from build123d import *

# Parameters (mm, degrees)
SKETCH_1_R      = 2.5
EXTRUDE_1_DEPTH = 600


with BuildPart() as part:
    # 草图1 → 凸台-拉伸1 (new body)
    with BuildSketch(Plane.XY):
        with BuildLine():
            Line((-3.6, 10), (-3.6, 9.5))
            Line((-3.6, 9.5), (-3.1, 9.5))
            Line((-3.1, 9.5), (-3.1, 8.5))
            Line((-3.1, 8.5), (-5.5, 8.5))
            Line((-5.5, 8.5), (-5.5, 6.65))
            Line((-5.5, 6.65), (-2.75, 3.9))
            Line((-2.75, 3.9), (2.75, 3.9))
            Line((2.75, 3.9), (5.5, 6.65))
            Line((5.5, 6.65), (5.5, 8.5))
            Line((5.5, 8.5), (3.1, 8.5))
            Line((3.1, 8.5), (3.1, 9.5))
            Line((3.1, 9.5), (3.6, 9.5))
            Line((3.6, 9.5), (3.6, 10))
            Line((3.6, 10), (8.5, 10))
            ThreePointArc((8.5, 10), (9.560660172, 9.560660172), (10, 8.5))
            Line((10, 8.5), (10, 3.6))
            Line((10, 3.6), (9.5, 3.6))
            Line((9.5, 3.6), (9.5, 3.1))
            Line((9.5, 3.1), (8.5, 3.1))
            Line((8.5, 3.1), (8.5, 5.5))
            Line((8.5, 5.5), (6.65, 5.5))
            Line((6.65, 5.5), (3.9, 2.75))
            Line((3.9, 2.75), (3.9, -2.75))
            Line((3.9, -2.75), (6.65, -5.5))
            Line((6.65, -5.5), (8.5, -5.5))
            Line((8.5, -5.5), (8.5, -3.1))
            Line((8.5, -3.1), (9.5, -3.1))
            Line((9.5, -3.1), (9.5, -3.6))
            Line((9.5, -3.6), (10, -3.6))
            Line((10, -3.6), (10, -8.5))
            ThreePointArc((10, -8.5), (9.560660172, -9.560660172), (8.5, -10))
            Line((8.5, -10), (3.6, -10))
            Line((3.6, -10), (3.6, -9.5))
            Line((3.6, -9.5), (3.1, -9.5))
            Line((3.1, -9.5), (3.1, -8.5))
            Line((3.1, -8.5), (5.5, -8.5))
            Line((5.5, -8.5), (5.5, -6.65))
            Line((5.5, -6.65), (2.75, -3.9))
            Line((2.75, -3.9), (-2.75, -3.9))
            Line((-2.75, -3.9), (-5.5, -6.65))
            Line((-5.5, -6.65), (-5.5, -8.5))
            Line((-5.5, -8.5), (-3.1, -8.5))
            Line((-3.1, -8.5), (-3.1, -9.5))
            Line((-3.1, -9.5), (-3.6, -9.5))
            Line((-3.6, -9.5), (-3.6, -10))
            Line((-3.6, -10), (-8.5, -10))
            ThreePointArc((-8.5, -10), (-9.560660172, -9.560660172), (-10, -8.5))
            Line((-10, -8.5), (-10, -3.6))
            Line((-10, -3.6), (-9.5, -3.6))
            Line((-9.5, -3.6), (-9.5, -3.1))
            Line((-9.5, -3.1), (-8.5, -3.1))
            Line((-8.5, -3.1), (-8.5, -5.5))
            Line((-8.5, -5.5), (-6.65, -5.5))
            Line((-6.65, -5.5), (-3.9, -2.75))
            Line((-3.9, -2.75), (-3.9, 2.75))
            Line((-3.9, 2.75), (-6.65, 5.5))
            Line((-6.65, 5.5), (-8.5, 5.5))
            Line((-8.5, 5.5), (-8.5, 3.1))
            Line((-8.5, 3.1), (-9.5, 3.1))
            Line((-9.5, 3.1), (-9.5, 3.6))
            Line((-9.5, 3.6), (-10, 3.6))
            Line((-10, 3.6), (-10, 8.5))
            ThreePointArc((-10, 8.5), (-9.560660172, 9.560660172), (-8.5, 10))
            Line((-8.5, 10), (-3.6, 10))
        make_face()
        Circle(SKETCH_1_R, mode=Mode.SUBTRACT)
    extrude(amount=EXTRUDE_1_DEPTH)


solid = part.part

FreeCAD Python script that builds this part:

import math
import FreeCAD as App
import Part
import Sketcher

doc = App.newDocument("Part")
body = doc.addObject("PartDesign::Body", "Body")

# Sketch on XY plane
sketch1 = body.newObject("Sketcher::SketchObject", "Sketch")
sketch1.AttachmentSupport = (doc.getObject("XY_Plane"), [""])
sketch1.MapMode = "FlatFace"
sketch1.addGeometry([
    Part.LineSegment(App.Vector(-3.6, 9.5, 0), App.Vector(-3.6, 10, 0)),  # 0
    Part.LineSegment(App.Vector(-3.6, 10, 0), App.Vector(-8.5, 10, 0)),  # 1
    Part.ArcOfCircle(Part.Circle(App.Vector(-8.5, 8.5, 0), App.Vector(0, 0, 1), 1.5), math.radians(90), math.radians(180)),  # 2
    Part.LineSegment(App.Vector(-10, 8.5, 0), App.Vector(-10, 3.6, 0)),  # 3
    Part.LineSegment(App.Vector(-10, 3.6, 0), App.Vector(-9.5, 3.6, 0)),  # 4
    Part.LineSegment(App.Vector(-9.5, 3.6, 0), App.Vector(-9.5, 3.1, 0)),  # 5
    Part.LineSegment(App.Vector(-9.5, 3.1, 0), App.Vector(-8.5, 3.1, 0)),  # 6
    Part.LineSegment(App.Vector(-8.5, 3.1, 0), App.Vector(-8.5, 5.5, 0)),  # 7
    Part.LineSegment(App.Vector(-8.5, 5.5, 0), App.Vector(-6.7, 5.5, 0)),  # 8
    Part.LineSegment(App.Vector(-6.7, 5.5, 0), App.Vector(-3.9, 2.8, 0)),  # 9
    Part.LineSegment(App.Vector(-3.9, 2.8, 0), App.Vector(-3.9, -2.8, 0)),  # 10
    Part.LineSegment(App.Vector(-3.9, -2.8, 0), App.Vector(-6.7, -5.5, 0)),  # 11
    Part.LineSegment(App.Vector(-6.7, -5.5, 0), App.Vector(-8.5, -5.5, 0)),  # 12
    Part.LineSegment(App.Vector(-8.5, -5.5, 0), App.Vector(-8.5, -3.1, 0)),  # 13
    Part.LineSegment(App.Vector(-8.5, -3.1, 0), App.Vector(-9.5, -3.1, 0)),  # 14
    Part.LineSegment(App.Vector(-9.5, -3.1, 0), App.Vector(-9.5, -3.6, 0)),  # 15
    Part.LineSegment(App.Vector(-9.5, -3.6, 0), App.Vector(-10, -3.6, 0)),  # 16
    Part.LineSegment(App.Vector(-10, -3.6, 0), App.Vector(-10, -8.5, 0)),  # 17
    Part.ArcOfCircle(Part.Circle(App.Vector(-8.5, -8.5, 0), App.Vector(0, 0, 1), 1.5), math.radians(180), math.radians(270)),  # 18
    Part.LineSegment(App.Vector(-8.5, -10, 0), App.Vector(-3.6, -10, 0)),  # 19
    Part.LineSegment(App.Vector(-3.6, -10, 0), App.Vector(-3.6, -9.5, 0)),  # 20
    Part.LineSegment(App.Vector(-3.6, -9.5, 0), App.Vector(-3.1, -9.5, 0)),  # 21
    Part.LineSegment(App.Vector(-3.1, -9.5, 0), App.Vector(-3.1, -8.5, 0)),  # 22
    Part.LineSegment(App.Vector(-3.1, -8.5, 0), App.Vector(-5.5, -8.5, 0)),  # 23
    Part.LineSegment(App.Vector(-5.5, -8.5, 0), App.Vector(-5.5, -6.7, 0)),  # 24
    Part.LineSegment(App.Vector(-5.5, -6.7, 0), App.Vector(-2.8, -3.9, 0)),  # 25
    Part.LineSegment(App.Vector(-2.8, -3.9, 0), App.Vector(2.8, -3.9, 0)),  # 26
    Part.LineSegment(App.Vector(2.8, -3.9, 0), App.Vector(5.5, -6.7, 0)),  # 27
    Part.LineSegment(App.Vector(5.5, -6.7, 0), App.Vector(5.5, -8.5, 0)),  # 28
    Part.LineSegment(App.Vector(5.5, -8.5, 0), App.Vector(3.1, -8.5, 0)),  # 29
    Part.LineSegment(App.Vector(3.1, -8.5, 0), App.Vector(3.1, -9.5, 0)),  # 30
    Part.LineSegment(App.Vector(3.1, -9.5, 0), App.Vector(3.6, -9.5, 0)),  # 31
    Part.LineSegment(App.Vector(3.6, -9.5, 0), App.Vector(3.6, -10, 0)),  # 32
    Part.LineSegment(App.Vector(3.6, -10, 0), App.Vector(8.5, -10, 0)),  # 33
    Part.ArcOfCircle(Part.Circle(App.Vector(8.5, -8.5, 0), App.Vector(0, 0, 1), 1.5), math.radians(-90), math.radians(0)),  # 34
    Part.LineSegment(App.Vector(10, -8.5, 0), App.Vector(10, -3.6, 0)),  # 35
    Part.LineSegment(App.Vector(10, -3.6, 0), App.Vector(9.5, -3.6, 0)),  # 36
    Part.LineSegment(App.Vector(9.5, -3.6, 0), App.Vector(9.5, -3.1, 0)),  # 37
    Part.LineSegment(App.Vector(9.5, -3.1, 0), App.Vector(8.5, -3.1, 0)),  # 38
    Part.LineSegment(App.Vector(8.5, -3.1, 0), App.Vector(8.5, -5.5, 0)),  # 39
    Part.LineSegment(App.Vector(8.5, -5.5, 0), App.Vector(6.7, -5.5, 0)),  # 40
    Part.LineSegment(App.Vector(6.7, -5.5, 0), App.Vector(3.9, -2.8, 0)),  # 41
    Part.LineSegment(App.Vector(3.9, -2.8, 0), App.Vector(3.9, 2.8, 0)),  # 42
    Part.LineSegment(App.Vector(3.9, 2.8, 0), App.Vector(6.7, 5.5, 0)),  # 43
    Part.LineSegment(App.Vector(6.7, 5.5, 0), App.Vector(8.5, 5.5, 0)),  # 44
    Part.LineSegment(App.Vector(8.5, 5.5, 0), App.Vector(8.5, 3.1, 0)),  # 45
    Part.LineSegment(App.Vector(8.5, 3.1, 0), App.Vector(9.5, 3.1, 0)),  # 46
    Part.LineSegment(App.Vector(9.5, 3.1, 0), App.Vector(9.5, 3.6, 0)),  # 47
    Part.LineSegment(App.Vector(9.5, 3.6, 0), App.Vector(10, 3.6, 0)),  # 48
    Part.LineSegment(App.Vector(10, 3.6, 0), App.Vector(10, 8.5, 0)),  # 49
    Part.ArcOfCircle(Part.Circle(App.Vector(8.5, 8.5, 0), App.Vector(0, 0, 1), 1.5), math.radians(0), math.radians(90)),  # 50
    Part.LineSegment(App.Vector(8.5, 10, 0), App.Vector(3.6, 10, 0)),  # 51
    Part.LineSegment(App.Vector(3.6, 10, 0), App.Vector(3.6, 9.5, 0)),  # 52
    Part.LineSegment(App.Vector(3.6, 9.5, 0), App.Vector(3.1, 9.5, 0)),  # 53
    Part.LineSegment(App.Vector(3.1, 9.5, 0), App.Vector(3.1, 8.5, 0)),  # 54
    Part.LineSegment(App.Vector(3.1, 8.5, 0), App.Vector(5.5, 8.5, 0)),  # 55
    Part.LineSegment(App.Vector(5.5, 8.5, 0), App.Vector(5.5, 6.7, 0)),  # 56
    Part.LineSegment(App.Vector(5.5, 6.7, 0), App.Vector(2.8, 3.9, 0)),  # 57
    Part.LineSegment(App.Vector(2.8, 3.9, 0), App.Vector(-2.8, 3.9, 0)),  # 58
    Part.LineSegment(App.Vector(-2.8, 3.9, 0), App.Vector(-5.5, 6.7, 0)),  # 59
    Part.LineSegment(App.Vector(-5.5, 6.7, 0), App.Vector(-5.5, 8.5, 0)),  # 60
    Part.LineSegment(App.Vector(-5.5, 8.5, 0), App.Vector(-3.1, 8.5, 0)),  # 61
    Part.LineSegment(App.Vector(-3.1, 8.5, 0), App.Vector(-3.1, 9.5, 0)),  # 62
    Part.LineSegment(App.Vector(-3.1, 9.5, 0), App.Vector(-3.6, 9.5, 0)),  # 63
    Part.Circle(App.Vector(0, 0, 0), App.Vector(0, 0, 1), 2.5),  # 64
], False)
sketch1.addConstraint([
    Sketcher.Constraint("Coincident", 0, 2, 1, 1),
    Sketcher.Constraint("Tangent", 1, 2, 2, 1),
    Sketcher.Constraint("Tangent", 2, 2, 3, 1),
    Sketcher.Constraint("Coincident", 3, 2, 4, 1),
    Sketcher.Constraint("Coincident", 4, 2, 5, 1),
    Sketcher.Constraint("Coincident", 5, 2, 6, 1),
    Sketcher.Constraint("Coincident", 6, 2, 7, 1),
    Sketcher.Constraint("Coincident", 7, 2, 8, 1),
    Sketcher.Constraint("Coincident", 8, 2, 9, 1),
    Sketcher.Constraint("Coincident", 9, 2, 10, 1),
    Sketcher.Constraint("Coincident", 10, 2, 11, 1),
    Sketcher.Constraint("Coincident", 11, 2, 12, 1),
    Sketcher.Constraint("Coincident", 12, 2, 13, 1),
    Sketcher.Constraint("Coincident", 13, 2, 14, 1),
    Sketcher.Constraint("Coincident", 14, 2, 15, 1),
    Sketcher.Constraint("Coincident", 15, 2, 16, 1),
    Sketcher.Constraint("Coincident", 16, 2, 17, 1),
    Sketcher.Constraint("Tangent", 17, 2, 18, 1),
    Sketcher.Constraint("Tangent", 18, 2, 19, 1),
    Sketcher.Constraint("Coincident", 19, 2, 20, 1),
    Sketcher.Constraint("Coincident", 20, 2, 21, 1),
    Sketcher.Constraint("Coincident", 21, 2, 22, 1),
    Sketcher.Constraint("Coincident", 22, 2, 23, 1),
    Sketcher.Constraint("Coincident", 23, 2, 24, 1),
    Sketcher.Constraint("Coincident", 24, 2, 25, 1),
    Sketcher.Constraint("Coincident", 25, 2, 26, 1),
    Sketcher.Constraint("Coincident", 26, 2, 27, 1),
    Sketcher.Constraint("Coincident", 27, 2, 28, 1),
    Sketcher.Constraint("Coincident", 28, 2, 29, 1),
    Sketcher.Constraint("Coincident", 29, 2, 30, 1),
    Sketcher.Constraint("Coincident", 30, 2, 31, 1),
    Sketcher.Constraint("Coincident", 31, 2, 32, 1),
    Sketcher.Constraint("Coincident", 32, 2, 33, 1),
    Sketcher.Constraint("Tangent", 33, 2, 34, 1),
    Sketcher.Constraint("Tangent", 34, 2, 35, 1),
    Sketcher.Constraint("Coincident", 35, 2, 36, 1),
    Sketcher.Constraint("Coincident", 36, 2, 37, 1),
    Sketcher.Constraint("Coincident", 37, 2, 38, 1),
    Sketcher.Constraint("Coincident", 38, 2, 39, 1),
    Sketcher.Constraint("Coincident", 39, 2, 40, 1),
    Sketcher.Constraint("Coincident", 40, 2, 41, 1),
    Sketcher.Constraint("Coincident", 41, 2, 42, 1),
    Sketcher.Constraint("Coincident", 42, 2, 43, 1),
    Sketcher.Constraint("Coincident", 43, 2, 44, 1),
    Sketcher.Constraint("Coincident", 44, 2, 45, 1),
    Sketcher.Constraint("Coincident", 45, 2, 46, 1),
    Sketcher.Constraint("Coincident", 46, 2, 47, 1),
    Sketcher.Constraint("Coincident", 47, 2, 48, 1),
    Sketcher.Constraint("Coincident", 48, 2, 49, 1),
    Sketcher.Constraint("Tangent", 49, 2, 50, 1),
    Sketcher.Constraint("Tangent", 50, 2, 51, 1),
    Sketcher.Constraint("Coincident", 51, 2, 52, 1),
    Sketcher.Constraint("Coincident", 52, 2, 53, 1),
    Sketcher.Constraint("Coincident", 53, 2, 54, 1),
    Sketcher.Constraint("Coincident", 54, 2, 55, 1),
    Sketcher.Constraint("Coincident", 55, 2, 56, 1),
    Sketcher.Constraint("Coincident", 56, 2, 57, 1),
    Sketcher.Constraint("Coincident", 57, 2, 58, 1),
    Sketcher.Constraint("Coincident", 58, 2, 59, 1),
    Sketcher.Constraint("Coincident", 59, 2, 60, 1),
    Sketcher.Constraint("Coincident", 60, 2, 61, 1),
    Sketcher.Constraint("Coincident", 61, 2, 62, 1),
    Sketcher.Constraint("Coincident", 62, 2, 63, 1),
    Sketcher.Constraint("Coincident", 63, 2, 0, 1),
    Sketcher.Constraint("Vertical", 0),
    Sketcher.Constraint("Horizontal", 1),
    Sketcher.Constraint("Vertical", 3),
    Sketcher.Constraint("Horizontal", 4),
    Sketcher.Constraint("Vertical", 5),
    Sketcher.Constraint("Horizontal", 6),
    Sketcher.Constraint("Vertical", 7),
    Sketcher.Constraint("Horizontal", 8),
    Sketcher.Constraint("Vertical", 10),
    Sketcher.Constraint("Horizontal", 12),
    Sketcher.Constraint("Vertical", 13),
    Sketcher.Constraint("Horizontal", 14),
    Sketcher.Constraint("Vertical", 15),
    Sketcher.Constraint("Horizontal", 16),
    Sketcher.Constraint("Vertical", 17),
    Sketcher.Constraint("Horizontal", 19),
    Sketcher.Constraint("Vertical", 20),
    Sketcher.Constraint("Horizontal", 21),
    Sketcher.Constraint("Vertical", 22),
    Sketcher.Constraint("Horizontal", 23),
    Sketcher.Constraint("Vertical", 24),
    Sketcher.Constraint("Horizontal", 26),
    Sketcher.Constraint("Vertical", 28),
    Sketcher.Constraint("Horizontal", 29),
    Sketcher.Constraint("Vertical", 30),
    Sketcher.Constraint("Horizontal", 31),
    Sketcher.Constraint("Vertical", 32),
    Sketcher.Constraint("Horizontal", 33),
    Sketcher.Constraint("Vertical", 35),
    Sketcher.Constraint("Horizontal", 36),
    Sketcher.Constraint("Vertical", 37),
    Sketcher.Constraint("Horizontal", 38),
    Sketcher.Constraint("Vertical", 39),
    Sketcher.Constraint("Horizontal", 40),
    Sketcher.Constraint("Vertical", 42),
    Sketcher.Constraint("Horizontal", 44),
    Sketcher.Constraint("Vertical", 45),
    Sketcher.Constraint("Horizontal", 46),
    Sketcher.Constraint("Vertical", 47),
    Sketcher.Constraint("Horizontal", 48),
    Sketcher.Constraint("Vertical", 49),
    Sketcher.Constraint("Horizontal", 51),
    Sketcher.Constraint("Vertical", 52),
    Sketcher.Constraint("Horizontal", 53),
    Sketcher.Constraint("Vertical", 54),
    Sketcher.Constraint("Horizontal", 55),
    Sketcher.Constraint("Vertical", 56),
    Sketcher.Constraint("Horizontal", 58),
    Sketcher.Constraint("Vertical", 60),
    Sketcher.Constraint("Horizontal", 61),
    Sketcher.Constraint("Vertical", 62),
    Sketcher.Constraint("Horizontal", 63),
    Sketcher.Constraint("Coincident", 64, 3, -1, 1),
    Sketcher.Constraint("Equal", 2, 18),
    Sketcher.Constraint("Equal", 18, 34),
    Sketcher.Constraint("Equal", 34, 50),
    Sketcher.Constraint("Symmetric", 2, 3, 34, 3, -1, 1),
    Sketcher.Constraint("Symmetric", 18, 3, 50, 3, -1, 1),
    Sketcher.Constraint("Symmetric", 4, 2, 36, 2, -1, 1),
    Sketcher.Constraint("Symmetric", 6, 2, 38, 2, -1, 1),
    Sketcher.Constraint("Symmetric", 8, 2, 40, 2, -1, 1),
    Sketcher.Constraint("Symmetric", 9, 2, 41, 2, -1, 1),
    Sketcher.Constraint("Symmetric", 11, 2, 43, 2, -1, 1),
    Sketcher.Constraint("Symmetric", 13, 2, 45, 2, -1, 1),
    Sketcher.Constraint("Symmetric", 15, 2, 47, 2, -1, 1),
    Sketcher.Constraint("Symmetric", 20, 2, 52, 2, -1, 1),
    Sketcher.Constraint("Symmetric", 22, 2, 54, 2, -1, 1),
    Sketcher.Constraint("Symmetric", 24, 2, 56, 2, -1, 1),
    Sketcher.Constraint("Symmetric", 25, 2, 57, 2, -1, 1),
    Sketcher.Constraint("Symmetric", 27, 2, 59, 2, -1, 1),
    Sketcher.Constraint("Symmetric", 29, 2, 61, 2, -1, 1),
    Sketcher.Constraint("Symmetric", 31, 2, 63, 2, -1, 1),
    Sketcher.Constraint("Symmetric", 18, 3, 34, 3, -2),
    Sketcher.Constraint("Symmetric", 24, 2, 27, 2, -2),
    Sketcher.Constraint("Symmetric", 22, 2, 29, 2, -2),
    Sketcher.Constraint("Symmetric", 20, 2, 31, 2, -2),
    Sketcher.Constraint("Symmetric", 15, 2, 36, 2, -2),
    Sketcher.Constraint("Symmetric", 13, 2, 38, 2, -2),
    Sketcher.Constraint("Symmetric", 11, 2, 40, 2, -2),
    Sketcher.Constraint("Perpendicular", 9, 11),
    Sketcher.Constraint("Parallel", 11, 25),
    Sketcher.Constraint("Perpendicular", 25, 27),
    Sketcher.Constraint("Perpendicular", 41, 43),
    Sketcher.Constraint("Perpendicular", 57, 59),
    Sketcher.Constraint("Horizontal", 17, 2, 22, 2),
    Sketcher.Constraint("Horizontal", 10, 2, 41, 2),
    Sketcher.Constraint("Vertical", 1, 2, 6, 2),
    Sketcher.Constraint("Equal", 16, 21),
    Sketcher.Constraint("Equal", 63, 0),
    Sketcher.Constraint("Equal", 51, 3),
    Sketcher.Constraint("Equal", 0, 5),
    Sketcher.Constraint("Equal", 61, 7),
    Sketcher.Constraint("Equal", 58, 10),
    Sketcher.Constraint("Equal", 44, 24),
    Sketcher.Constraint("Equal", 11, 25),
    Sketcher.Constraint("Diameter", 64, 5.0),
    Sketcher.Constraint("Radius", 2, 1.5),
    Sketcher.Constraint("DistanceX", 6, 1, 6, 2, 1.0),
    Sketcher.Constraint("DistanceX", 1, 2, 1, 1, 4.9),
    Sketcher.Constraint("DistanceX", 23, 2, 23, 1, 2.4),
    Sketcher.Constraint("DistanceX", 26, 1, 26, 2, 5.5),
    Sketcher.Constraint("DistanceY", -1, 1, 0, 2, 10.0),
    Sketcher.Constraint("DistanceX", 8, 1, 8, 2, 1.85),
])
pad1 = body.newObject("PartDesign::Pad", "Pad")
pad1.Profile = sketch1
pad1.Length = 600

doc.recompute()
